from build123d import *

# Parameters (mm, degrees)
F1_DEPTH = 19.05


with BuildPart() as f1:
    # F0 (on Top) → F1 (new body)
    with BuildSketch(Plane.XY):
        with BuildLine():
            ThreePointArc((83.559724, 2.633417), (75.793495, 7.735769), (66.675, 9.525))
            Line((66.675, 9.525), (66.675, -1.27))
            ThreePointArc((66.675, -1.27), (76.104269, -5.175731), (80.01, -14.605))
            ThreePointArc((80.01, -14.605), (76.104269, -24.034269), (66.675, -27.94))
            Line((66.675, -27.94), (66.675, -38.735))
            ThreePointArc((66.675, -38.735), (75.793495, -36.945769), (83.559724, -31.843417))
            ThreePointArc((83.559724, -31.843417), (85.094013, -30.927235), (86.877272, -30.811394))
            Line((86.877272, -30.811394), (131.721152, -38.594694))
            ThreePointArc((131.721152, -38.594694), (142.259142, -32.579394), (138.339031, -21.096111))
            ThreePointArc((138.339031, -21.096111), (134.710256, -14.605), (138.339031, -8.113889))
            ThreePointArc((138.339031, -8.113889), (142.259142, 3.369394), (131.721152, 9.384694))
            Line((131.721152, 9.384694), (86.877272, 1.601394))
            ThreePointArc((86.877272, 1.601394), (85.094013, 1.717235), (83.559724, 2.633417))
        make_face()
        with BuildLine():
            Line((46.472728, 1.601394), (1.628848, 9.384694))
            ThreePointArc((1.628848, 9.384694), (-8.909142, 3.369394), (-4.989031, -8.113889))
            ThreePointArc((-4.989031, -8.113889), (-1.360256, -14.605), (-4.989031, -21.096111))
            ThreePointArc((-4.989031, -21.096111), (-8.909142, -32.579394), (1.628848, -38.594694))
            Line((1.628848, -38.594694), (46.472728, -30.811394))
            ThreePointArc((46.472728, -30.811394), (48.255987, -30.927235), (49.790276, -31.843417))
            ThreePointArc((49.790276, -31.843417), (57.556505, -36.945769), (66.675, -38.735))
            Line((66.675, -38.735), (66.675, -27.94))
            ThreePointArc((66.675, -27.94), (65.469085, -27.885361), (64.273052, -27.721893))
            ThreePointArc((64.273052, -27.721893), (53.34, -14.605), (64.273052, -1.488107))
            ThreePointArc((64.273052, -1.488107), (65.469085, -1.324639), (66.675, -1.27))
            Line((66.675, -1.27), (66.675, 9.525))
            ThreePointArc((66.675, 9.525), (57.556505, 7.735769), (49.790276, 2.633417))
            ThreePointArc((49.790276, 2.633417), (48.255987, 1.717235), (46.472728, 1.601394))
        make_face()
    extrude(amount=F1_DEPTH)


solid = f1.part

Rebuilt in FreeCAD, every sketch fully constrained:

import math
import FreeCAD as App
import Part
import Sketcher
Q = App.Units.Quantity

doc = App.newDocument("Part")
body = doc.addObject("PartDesign::Body", "Body")

# Sketch on XY plane
sketch1 = body.newObject("Sketcher::SketchObject", "Sketch")
sketch1.AttachmentSupport = (doc.getObject("XY_Plane"), [""])
sketch1.MapMode = "FlatFace"
sketch1.addGeometry([
    Part.ArcOfCircle(Part.Circle(App.Vector(66.675, -14.605001, 0), App.Vector(0, 0, 1), 24.130001), math.radians(45.593863), math.radians(90.000001)),  # 0
    Part.ArcOfCircle(Part.Circle(App.Vector(66.675, -14.605001, 0), App.Vector(0, 0, 1), 24.130001), math.radians(89.999999), math.radians(134.406137)),  # 1
    Part.ArcOfCircle(Part.Circle(App.Vector(47.124267, 5.355269, 0), App.Vector(0, 0, 1), 3.809997), math.radians(-99.84642), math.radians(-45.593829)),  # 2
    Part.LineSegment(App.Vector(46.472728, 1.601394, 0), App.Vector(1.628848, 9.384694, 0)),  # 3
    Part.ArcOfCircle(Part.Circle(App.Vector(0, 0, 0), App.Vector(0, 0, 1), 9.525), math.radians(80.153588), math.radians(238.413664)),  # 4
    Part.ArcOfCircle(Part.Circle(App.Vector(-8.980256, -14.605, 0), App.Vector(0, 0, 1), 7.62), math.radians(-58.413662), math.radians(58.413662)),  # 5
    Part.ArcOfCircle(Part.Circle(App.Vector(0, -29.21, 0), App.Vector(0, 0, 1), 9.525), math.radians(121.586336), math.radians(279.846412)),  # 6
    Part.LineSegment(App.Vector(1.628848, -38.594694, 0), App.Vector(46.472728, -30.811394, 0)),  # 7
    Part.ArcOfCircle(Part.Circle(App.Vector(47.124267, -34.565269, 0), App.Vector(0, 0, 1), 3.809997), math.radians(45.593829), math.radians(99.84642)),  # 8
    Part.ArcOfCircle(Part.Circle(App.Vector(66.675, -14.604999, 0), App.Vector(0, 0, 1), 24.130001), math.radians(-134.406137), math.radians(-89.999999)),  # 9
    Part.ArcOfCircle(Part.Circle(App.Vector(66.675, -14.604999, 0), App.Vector(0, 0, 1), 24.130001), math.radians(-90.000001), math.radians(-45.593863)),  # 10
    Part.ArcOfCircle(Part.Circle(App.Vector(86.225733, -34.565269, 0), App.Vector(0, 0, 1), 3.809997), math.radians(80.15358), math.radians(134.406171)),  # 11
    Part.LineSegment(App.Vector(86.877272, -30.811394, 0), App.Vector(131.721152, -38.594694, 0)),  # 12
    Part.ArcOfCircle(Part.Circle(App.Vector(133.35, -29.21, 0), App.Vector(0, 0, 1), 9.525), math.radians(-99.846412), math.radians(58.413664)),  # 13
    Part.ArcOfCircle(Part.Circle(App.Vector(142.330256, -14.605, 0), App.Vector(0, 0, 1), 7.62), math.radians(121.586338), math.radians(238.413662)),  # 14
    Part.ArcOfCircle(Part.Circle(App.Vector(133.35, 0, 0), App.Vector(0, 0, 1), 9.525), math.radians(-58.413664), math.radians(99.846412)),  # 15
    Part.LineSegment(App.Vector(131.721152, 9.384694, 0), App.Vector(86.877272, 1.601394, 0)),  # 16
    Part.ArcOfCircle(Part.Circle(App.Vector(86.225733, 5.355269, 0), App.Vector(0, 0, 1), 3.809997), math.radians(-134.406171), math.radians(-80.15358)),  # 17
    Part.ArcOfCircle(Part.Circle(App.Vector(66.675, -14.605, 0), App.Vector(0, 0, 1), 13.335), math.radians(-0.000001), math.radians(90.000001)),  # 18
    Part.ArcOfCircle(Part.Circle(App.Vector(66.675, -14.605, 0), App.Vector(0, 0, 1), 13.335), math.radians(-90.000001), math.radians(0.000001)),  # 19
    Part.ArcOfCircle(Part.Circle(App.Vector(66.675007, -14.604897, 0), App.Vector(0, 0, 1), 13.335103), math.radians(-100.376908), math.radians(-90.00003)),  # 20
    Part.ArcOfCircle(Part.Circle(App.Vector(66.675001, -14.605, 0), App.Vector(0, 0, 1), 13.335001), math.radians(100.37696), math.radians(259.62304)),  # 21
    Part.ArcOfCircle(Part.Circle(App.Vector(66.675007, -14.605103, 0), App.Vector(0, 0, 1), 13.335103), math.radians(90.00003), math.radians(100.376908)),  # 22
], False)
sketch1.addConstraint([
    Sketcher.Constraint("Coincident", 0, 2, 1, 1),
    Sketcher.Constraint("Coincident", 1, 2, 2, 2),
    Sketcher.Constraint("Coincident", 2, 1, 3, 1),
    Sketcher.Constraint("Coincident", 3, 2, 4, 1),
    Sketcher.Constraint("Coincident", 4, 2, 5, 2),
    Sketcher.Constraint("Coincident", 5, 1, 6, 1),
    Sketcher.Constraint("Coincident", 6, 2, 7, 1),
    Sketcher.Constraint("Coincident", 7, 2, 8, 2),
    Sketcher.Constraint("Coincident", 8, 1, 9, 1),
    Sketcher.Constraint("Coincident", 9, 2, 10, 1),
    Sketcher.Constraint("Coincident", 10, 2, 11, 2),
    Sketcher.Constraint("Coincident", 11, 1, 12, 1),
    Sketcher.Constraint("Coincident", 12, 2, 13, 1),
    Sketcher.Constraint("Coincident", 13, 2, 14, 2),
    Sketcher.Constraint("Coincident", 14, 1, 15, 1),
    Sketcher.Constraint("Coincident", 15, 2, 16, 1),
    Sketcher.Constraint("Coincident", 16, 2, 17, 2),
    Sketcher.Constraint("Coincident", 17, 1, 0, 1),
    Sketcher.Constraint("Coincident", 18, 1, 19, 2),
    Sketcher.Constraint("Coincident", 19, 1, 20, 2),
    Sketcher.Constraint("Coincident", 20, 1, 21, 2),
    Sketcher.Constraint("Coincident", 21, 1, 22, 2),
    Sketcher.Constraint("Coincident", 22, 1, 18, 2),
    Sketcher.Constraint("Coincident", 4, 3, -1, 1),
    Sketcher.Constraint("Coincident", 1, 3, 0, 3),
    Sketcher.Constraint("Coincident", 9, 3, 0, 3),
    Sketcher.Constraint("Coincident", 10, 3, 0, 3),
    Sketcher.Constraint("Coincident", 18, 3, 0, 3),
    Sketcher.Constraint("Coincident", 19, 3, 0, 3),
    Sketcher.Constraint("Coincident", 21, 3, 0, 3),
    Sketcher.Constraint("PointOnObject", 6, 3, -2),
    Sketcher.Constraint("PointOnObject", 15, 3, -1),
    Sketcher.Constraint("Radius", 5, Q("0.3 in")),
    Sketcher.Constraint("Radius", 14, Q("0.3 in")),
    Sketcher.Constraint("Radius", 0, Q("0.95 in")),
    Sketcher.Constraint("Radius", 2, Q("0.1499999 in")),
    Sketcher.Constraint("Radius", 8, Q("0.1499999 in")),
    Sketcher.Constraint("Radius", 9, Q("0.95 in")),
    Sketcher.Constraint("Radius", 11, Q("0.1499999 in")),
    Sketcher.Constraint("Radius", 17, Q("0.1499999 in")),
    Sketcher.Constraint("Radius", 4, Q("0.375 in")),
    Sketcher.Constraint("Radius", 6, Q("0.375 in")),
    Sketcher.Constraint("Radius", 13, Q("0.375 in")),
    Sketcher.Constraint("Radius", 15, Q("0.375 in")),
    Sketcher.Constraint("Radius", 18, Q("0.525 in")),
    Sketcher.Constraint("Radius", 21, Q("0.525 in")),
    Sketcher.Constraint("DistanceY", 19, 1, -1, 1, Q("1.1 in")),
    Sketcher.Constraint("DistanceY", 6, 3, -1, 1, Q("1.15 in")),
    Sketcher.Constraint("DistanceX", -1, 1, 13, 3, Q("5.25 in")),
    Sketcher.Constraint("DistanceY", 13, 3, -1, 1, Q("1.15 in")),
    Sketcher.Constraint("DistanceX", -1, 1, 15, 3, Q("5.25 in")),
    Sketcher.Constraint("DistanceX", -1, 1, 18, 1, Q("3.15 in")),
    Sketcher.Constraint("DistanceX", -1, 1, 0, 2, Q("2.625 in")),
    Sketcher.Constraint("DistanceX", -1, 1, 9, 2, Q("2.625 in")),
    Sketcher.Constraint("DistanceY", 18, 1, -1, 1, Q("0.575 in")),
    Sketcher.Constraint("DistanceX", -1, 1, 19, 1, Q("2.625 in")),
    Sketcher.Constraint("DistanceX", -1, 1, 22, 1, Q("2.625 in")),
    Sketcher.Constraint("Radius", 20, Q("13.335103 mm")),
    Sketcher.Constraint("Radius", 22, Q("13.335103 mm")),
    Sketcher.Constraint("DistanceY", 2, 1, 3, 2, Q("7.7833 mm")),
    Sketcher.Constraint("DistanceY", 12, 2, 11, 1, Q("7.7833 mm")),
    Sketcher.Constraint("Distance", 3, Q("45.51432 mm")),
    Sketcher.Constraint("Distance", 7, Q("45.51432 mm")),
    Sketcher.Constraint("Distance", 12, Q("45.51432 mm")),
    Sketcher.Constraint("Distance", 16, Q("45.51432 mm")),
    Sketcher.Constraint("DistanceY", 8, 3, -1, 1, Q("34.565269 mm")),
    Sketcher.Constraint("DistanceY", -1, 1, 17, 3, Q("5.355269 mm")),
    Sketcher.Constraint("DistanceX", -1, 1, 2, 1, Q("46.472728 mm")),
    Sketcher.Constraint("DistanceX", 4, 2, -1, 1, Q("4.989031 mm")),
    Sketcher.Constraint("DistanceX", 5, 1, -1, 1, Q("4.989031 mm")),
    Sketcher.Constraint("DistanceX", -1, 1, 11, 1, Q("86.877272 mm")),
    Sketcher.Constraint("DistanceX", -1, 1, 13, 2, Q("138.339031 mm")),
    Sketcher.Constraint("DistanceX", -1, 1, 14, 1, Q("138.339031 mm")),
    Sketcher.Constraint("DistanceX", -1, 1, 21, 1, Q("64.273052 mm")),
    Sketcher.Constraint("DistanceX", 2, 3, 1, 2, Q("2.666009 mm")),
    Sketcher.Constraint("DistanceX", 6, 3, 6, 2, Q("1.628848 mm")),
    Sketcher.Constraint("DistanceX", 7, 2, 8, 1, Q("3.317548 mm")),
    Sketcher.Constraint("DistanceX", 10, 2, 11, 3, Q("2.666009 mm")),
    Sketcher.Constraint("DistanceX", 15, 2, 15, 3, Q("1.628848 mm")),
    Sketcher.Constraint("DistanceX", 17, 1, 16, 2, Q("3.317548 mm")),
    Sketcher.Constraint("DistanceY", 20, 1, 22, 3, Q("13.11679 mm")),
])
pad1 = body.newObject("PartDesign::Pad", "Pad")
pad1.Profile = sketch1
pad1.Length = Q("0.75 in")

doc.recompute()
